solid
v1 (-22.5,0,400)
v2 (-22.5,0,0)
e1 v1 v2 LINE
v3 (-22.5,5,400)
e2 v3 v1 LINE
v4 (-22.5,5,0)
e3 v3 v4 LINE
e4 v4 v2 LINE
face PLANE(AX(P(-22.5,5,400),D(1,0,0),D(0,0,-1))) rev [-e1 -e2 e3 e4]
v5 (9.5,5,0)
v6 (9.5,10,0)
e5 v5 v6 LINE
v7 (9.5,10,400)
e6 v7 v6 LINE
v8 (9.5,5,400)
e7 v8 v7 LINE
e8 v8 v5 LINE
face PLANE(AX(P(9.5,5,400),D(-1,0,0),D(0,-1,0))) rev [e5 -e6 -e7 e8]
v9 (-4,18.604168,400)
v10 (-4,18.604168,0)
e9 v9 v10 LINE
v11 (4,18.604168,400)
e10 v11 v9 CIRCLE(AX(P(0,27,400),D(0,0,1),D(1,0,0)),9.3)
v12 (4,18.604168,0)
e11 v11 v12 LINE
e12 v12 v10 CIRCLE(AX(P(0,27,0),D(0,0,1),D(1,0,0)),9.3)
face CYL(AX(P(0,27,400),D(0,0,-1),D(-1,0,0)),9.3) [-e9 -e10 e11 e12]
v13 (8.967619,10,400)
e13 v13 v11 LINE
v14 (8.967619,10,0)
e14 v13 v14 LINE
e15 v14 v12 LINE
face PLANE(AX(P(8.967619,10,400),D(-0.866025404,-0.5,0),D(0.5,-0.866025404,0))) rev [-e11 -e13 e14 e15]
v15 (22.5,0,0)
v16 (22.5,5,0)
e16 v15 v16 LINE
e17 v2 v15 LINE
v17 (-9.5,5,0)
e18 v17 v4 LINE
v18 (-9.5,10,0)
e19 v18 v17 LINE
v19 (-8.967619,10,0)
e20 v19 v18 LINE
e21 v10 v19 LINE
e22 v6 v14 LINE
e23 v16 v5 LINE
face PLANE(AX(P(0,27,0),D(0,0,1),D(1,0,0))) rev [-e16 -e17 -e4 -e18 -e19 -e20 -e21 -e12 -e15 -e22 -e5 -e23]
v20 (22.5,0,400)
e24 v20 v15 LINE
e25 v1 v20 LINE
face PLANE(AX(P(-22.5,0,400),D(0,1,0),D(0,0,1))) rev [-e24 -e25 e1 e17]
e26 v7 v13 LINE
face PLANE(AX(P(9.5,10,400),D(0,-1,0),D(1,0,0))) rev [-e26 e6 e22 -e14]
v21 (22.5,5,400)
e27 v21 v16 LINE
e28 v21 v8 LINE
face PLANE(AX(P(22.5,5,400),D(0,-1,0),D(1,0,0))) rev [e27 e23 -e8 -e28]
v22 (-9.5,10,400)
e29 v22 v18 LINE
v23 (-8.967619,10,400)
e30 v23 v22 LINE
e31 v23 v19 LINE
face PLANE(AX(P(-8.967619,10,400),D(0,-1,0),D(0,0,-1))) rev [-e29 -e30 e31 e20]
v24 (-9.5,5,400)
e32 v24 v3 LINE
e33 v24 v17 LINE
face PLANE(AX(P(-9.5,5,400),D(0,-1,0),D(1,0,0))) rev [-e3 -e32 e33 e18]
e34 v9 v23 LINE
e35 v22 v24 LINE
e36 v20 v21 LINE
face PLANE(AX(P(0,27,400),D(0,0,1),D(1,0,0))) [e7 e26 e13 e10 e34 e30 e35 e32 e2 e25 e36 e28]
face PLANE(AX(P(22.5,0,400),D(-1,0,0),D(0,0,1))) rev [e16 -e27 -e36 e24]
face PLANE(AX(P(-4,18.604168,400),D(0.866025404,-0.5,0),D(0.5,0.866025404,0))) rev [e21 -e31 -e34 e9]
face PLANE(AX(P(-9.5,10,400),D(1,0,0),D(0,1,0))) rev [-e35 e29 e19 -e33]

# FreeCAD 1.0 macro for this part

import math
import FreeCAD as App
import Part
import Sketcher
from FreeCAD import Vector
Q = App.Units.Quantity

doc = App.newDocument("Part")
body = doc.addObject("PartDesign::Body", "Body")

# Sketch on XY plane
sketch1 = doc.addObject("Sketcher::SketchObject", "Sketch")
body.addObject(sketch1)
sketch1.AttachmentSupport = (doc.XY_Plane, [""])
sketch1.MapMode = "FlatFace"
sketch1.addGeometry(Part.LineSegment(Vector(-22.5, 0, 0), Vector(22.5, 0, 0)), False)
sketch1.addGeometry(Part.LineSegment(Vector(22.5, 0, 0), Vector(22.5, 5, 0)), False)
sketch1.addGeometry(Part.LineSegment(Vector(22.5, 5, 0), Vector(9.5, 5, 0)), False)
sketch1.addGeometry(Part.LineSegment(Vector(9.5, 5, 0), Vector(9.5, 10, 0)), False)
sketch1.addGeometry(Part.LineSegment(Vector(9.5, 10, 0), Vector(9, 10, 0)), False)
sketch1.addGeometry(Part.LineSegment(Vector(9, 10, 0), Vector(4, 18.6, 0)), False)
sketch1.addGeometry(Part.ArcOfCircle(Part.Circle(Vector(0, 27, 0), Vector(0, 0, 1), 9.3), math.radians(-65), math.radians(245)), False)
sketch1.addGeometry(Part.LineSegment(Vector(-4, 18.6, 0), Vector(-9, 10, 0)), False)
sketch1.addGeometry(Part.LineSegment(Vector(-9, 10, 0), Vector(-9.5, 10, 0)), False)
sketch1.addGeometry(Part.LineSegment(Vector(-9.5, 10, 0), Vector(-9.5, 5, 0)), False)
sketch1.addGeometry(Part.LineSegment(Vector(-9.5, 5, 0), Vector(-22.5, 5, 0)), False)
sketch1.addGeometry(Part.LineSegment(Vector(-22.5, 5, 0), Vector(-22.5, 0, 0)), False)
sketch1.addConstraint(Sketcher.Constraint("Coincident", 0, 2, 1, 1))
sketch1.addConstraint(Sketcher.Constraint("Coincident", 1, 2, 2, 1))
sketch1.addConstraint(Sketcher.Constraint("Coincident", 2, 2, 3, 1))
sketch1.addConstraint(Sketcher.Constraint("Coincident", 3, 2, 4, 1))
sketch1.addConstraint(Sketcher.Constraint("Coincident", 4, 2, 5, 1))
sketch1.addConstraint(Sketcher.Constraint("Coincident", 5, 2, 6, 1))
sketch1.addConstraint(Sketcher.Constraint("Coincident", 6, 2, 7, 1))
sketch1.addConstraint(Sketcher.Constraint("Coincident", 7, 2, 8, 1))
sketch1.addConstraint(Sketcher.Constraint("Coincident", 8, 2, 9, 1))
sketch1.addConstraint(Sketcher.Constraint("Coincident", 9, 2, 10, 1))
sketch1.addConstraint(Sketcher.Constraint("Coincident", 10, 2, 11, 1))
sketch1.addConstraint(Sketcher.Constraint("Coincident", 11, 2, 0, 1))
sketch1.addConstraint(Sketcher.Constraint("Horizontal", 0))
sketch1.addConstraint(Sketcher.Constraint("Vertical", 1))
sketch1.addConstraint(Sketcher.Constraint("Horizontal", 2))
sketch1.addConstraint(Sketcher.Constraint("Vertical", 3))
sketch1.addConstraint(Sketcher.Constraint("Horizontal", 4))
sketch1.addConstraint(Sketcher.Constraint("Horizontal", 8))
sketch1.addConstraint(Sketcher.Constraint("Vertical", 9))
sketch1.addConstraint(Sketcher.Constraint("Horizontal", 10))
sketch1.addConstraint(Sketcher.Constraint("Vertical", 11))
sketch1.addConstraint(Sketcher.Constraint("Symmetric", 0, 2, 11, 2, -1, 1))
sketch1.addConstraint(Sketcher.Constraint("Symmetric", 5, 2, 6, 2, -2))
sketch1.addConstraint(Sketcher.Constraint("Symmetric", 4, 2, 7, 2, -2))
sketch1.addConstraint(Sketcher.Constraint("Symmetric", 2, 2, 9, 2, -2))
sketch1.addConstraint(Sketcher.Constraint("Equal", 1, 3))
sketch1.addConstraint(Sketcher.Constraint("Radius", 6, 9.3))
sketch1.addConstraint(Sketcher.Constraint("DistanceX", 0, 1, 0, 2, 45.0))
sketch1.addConstraint(Sketcher.Constraint("DistanceX", 2, 2, 2, 1, 13.0))
sketch1.addConstraint(Sketcher.Constraint("DistanceY", 1, 1, 1, 2, 5.0))
sketch1.addConstraint(Sketcher.Constraint("Angle", 5, Q("120 deg")))
sketch1.addConstraint(Sketcher.Constraint("DistanceY", -1, 1, 6, 3, 27.0))
sketch1.addConstraint(Sketcher.Constraint("DistanceX", -1, 1, 5, 2, 4.0))
pad1 = doc.addObject("PartDesign::Pad", "Pad")
body.addObject(pad1)
pad1.Profile = sketch1
pad1.Length = 400

doc.recompute()
